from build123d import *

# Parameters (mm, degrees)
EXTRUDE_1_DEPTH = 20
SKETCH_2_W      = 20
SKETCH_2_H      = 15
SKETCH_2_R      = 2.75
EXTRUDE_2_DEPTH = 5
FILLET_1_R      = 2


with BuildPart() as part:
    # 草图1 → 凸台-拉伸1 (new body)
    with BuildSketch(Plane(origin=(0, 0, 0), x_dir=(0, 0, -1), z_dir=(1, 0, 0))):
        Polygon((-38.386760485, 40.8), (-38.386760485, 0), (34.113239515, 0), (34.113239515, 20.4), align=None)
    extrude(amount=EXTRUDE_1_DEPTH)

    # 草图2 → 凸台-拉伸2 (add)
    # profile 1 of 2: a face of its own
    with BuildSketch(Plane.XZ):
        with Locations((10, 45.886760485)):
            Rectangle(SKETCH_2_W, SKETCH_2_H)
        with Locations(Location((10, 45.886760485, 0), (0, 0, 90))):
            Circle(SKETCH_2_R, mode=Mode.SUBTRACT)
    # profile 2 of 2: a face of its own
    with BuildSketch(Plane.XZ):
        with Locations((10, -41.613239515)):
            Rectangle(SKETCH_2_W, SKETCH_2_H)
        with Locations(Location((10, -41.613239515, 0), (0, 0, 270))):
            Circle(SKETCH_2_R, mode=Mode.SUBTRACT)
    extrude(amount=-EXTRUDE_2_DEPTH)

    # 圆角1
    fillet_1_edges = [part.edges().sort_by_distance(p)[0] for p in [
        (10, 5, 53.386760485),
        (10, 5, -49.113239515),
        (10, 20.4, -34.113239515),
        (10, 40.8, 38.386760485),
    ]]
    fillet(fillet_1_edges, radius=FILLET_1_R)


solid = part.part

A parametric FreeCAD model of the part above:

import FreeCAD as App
import Part
import Sketcher

V = App.Vector


def edges_at(feature, points):
    """Names of the edges that pass closest to the given points."""
    edges = feature.Shape.Edges
    near = lambda p: min(range(len(edges)), key=lambda i: edges[i].distToShape(Part.Vertex(*p))[0])
    return sorted({f"Edge{near(p) + 1}" for p in points})


def add_polygon(sketch, points):
    """Adds a closed chain of lines whose ends are joined by coincident constraints."""
    first, n = sketch.GeometryCount, len(points)
    for a, b in zip(points, points[1:] + points[:1]):
        sketch.addGeometry(Part.LineSegment(App.Vector(*a, 0), App.Vector(*b, 0)), False)
    for i in range(n):
        sketch.addConstraint(Sketcher.Constraint("Coincident", first + i, 2, first + (i + 1) % n, 1))

doc = App.newDocument("Part")
body = doc.addObject("PartDesign::Body", "Body")

# Sketch on YZ plane
sketch1 = body.newObject("Sketcher::SketchObject", "Sketch")
sketch1.AttachmentSupport = (doc.getObject("YZ_Plane"), [""])
sketch1.MapMode = "FlatFace"
add_polygon(sketch1, [(40.8, 38.38676), (0, 38.38676), (0, -34.11324), (20.4, -34.11324)])  # lines 0-3
sketch1.addConstraint(Sketcher.Constraint("Horizontal", 0))
sketch1.addConstraint(Sketcher.Constraint("Vertical", 1))
sketch1.addConstraint(Sketcher.Constraint("Horizontal", 2))
sketch1.addConstraint(Sketcher.Constraint("PointOnObject", 0, 2, -2))
sketch1.addConstraint(Sketcher.Constraint("DistanceX", 0, 2, 0, 1, 40.8))
sketch1.addConstraint(Sketcher.Constraint("DistanceX", 2, 1, 2, 2, 20.4))
sketch1.addConstraint(Sketcher.Constraint("DistanceY", 1, 2, 1, 1, 72.5))
sketch1.addConstraint(Sketcher.Constraint("DistanceY", -1, 1, 0, 2, 38.38676))
pad1 = body.newObject("PartDesign::Pad", "Pad")
pad1.Profile = sketch1
pad1.Length = 20

# Sketch on XZ plane
sketch2 = body.newObject("Sketcher::SketchObject", "Sketch001")
sketch2.AttachmentSupport = (doc.getObject("XZ_Plane"), [""])
sketch2.MapMode = "FlatFace"
add_polygon(sketch2, [(0, 53.38676), (0, 38.38676), (20, 38.38676), (20, 53.38676)])  # lines 0-3
sketch2.addGeometry(Part.Circle(V(10, 45.88676, 0), V(0, 0, 1), 2.75), False)  # 4
add_polygon(sketch2, [(0, -34.11324), (0, -49.11324), (20, -49.11324), (20, -34.11324)])  # lines 5-8
sketch2.addGeometry(Part.Circle(V(10, -41.61324, 0), V(0, 0, 1), 2.75), False)  # 9
sketch2.addConstraint(Sketcher.Constraint("Vertical", 0))
sketch2.addConstraint(Sketcher.Constraint("Horizontal", 1))
sketch2.addConstraint(Sketcher.Constraint("Vertical", 2))
sketch2.addConstraint(Sketcher.Constraint("Horizontal", 3))
sketch2.addConstraint(Sketcher.Constraint("Vertical", 5))
sketch2.addConstraint(Sketcher.Constraint("Horizontal", 6))
sketch2.addConstraint(Sketcher.Constraint("Vertical", 7))
sketch2.addConstraint(Sketcher.Constraint("Horizontal", 8))
sketch2.addConstraint(Sketcher.Constraint("Equal", 4, 9))
sketch2.addConstraint(Sketcher.Constraint("PointOnObject", 0, 2, -2))
sketch2.addConstraint(Sketcher.Constraint("PointOnObject", 5, 2, -2))
sketch2.addConstraint(Sketcher.Constraint("Vertical", 4, 3, 9, 3))
sketch2.addConstraint(Sketcher.Constraint("Vertical", 2, 2, 6, 2))
sketch2.addConstraint(Sketcher.Constraint("Equal", 2, 5))
sketch2.addConstraint(Sketcher.Constraint("Diameter", 4, 5.5))
sketch2.addConstraint(Sketcher.Constraint("DistanceX", 1, 1, 1, 2, 20.0))
sketch2.addConstraint(Sketcher.Constraint("DistanceY", 0, 2, 0, 1, 15.0))
sketch2.addConstraint(Sketcher.Constraint("DistanceX", -1, 1, 4, 3, 10.0))
sketch2.addConstraint(Sketcher.Constraint("DistanceY", 9, 3, 0, 2, 80.0))
sketch2.addConstraint(Sketcher.Constraint("DistanceY", 5, 2, 4, 3, 95.0))
sketch2.addConstraint(Sketcher.Constraint("DistanceY", 9, 3, 4, 3, 87.5))
sketch2.addConstraint(Sketcher.Constraint("DistanceY", -1, 1, 4, 3, 45.88676))
pad2 = body.newObject("PartDesign::Pad", "Pad001")
pad2.Profile = sketch2
pad2.Length = 5
pad2.Reversed = True
doc.recompute()

fillet = body.newObject("PartDesign::Fillet", "Fillet")
fillet.Base = (pad2, edges_at(pad2, [
    (10, 5, 53.387),
    (10, 5, -49.113),
    (10, 20.4, -34.113),
    (10, 40.8, 38.387),
]))
fillet.Radius = 2

doc.recompute()
